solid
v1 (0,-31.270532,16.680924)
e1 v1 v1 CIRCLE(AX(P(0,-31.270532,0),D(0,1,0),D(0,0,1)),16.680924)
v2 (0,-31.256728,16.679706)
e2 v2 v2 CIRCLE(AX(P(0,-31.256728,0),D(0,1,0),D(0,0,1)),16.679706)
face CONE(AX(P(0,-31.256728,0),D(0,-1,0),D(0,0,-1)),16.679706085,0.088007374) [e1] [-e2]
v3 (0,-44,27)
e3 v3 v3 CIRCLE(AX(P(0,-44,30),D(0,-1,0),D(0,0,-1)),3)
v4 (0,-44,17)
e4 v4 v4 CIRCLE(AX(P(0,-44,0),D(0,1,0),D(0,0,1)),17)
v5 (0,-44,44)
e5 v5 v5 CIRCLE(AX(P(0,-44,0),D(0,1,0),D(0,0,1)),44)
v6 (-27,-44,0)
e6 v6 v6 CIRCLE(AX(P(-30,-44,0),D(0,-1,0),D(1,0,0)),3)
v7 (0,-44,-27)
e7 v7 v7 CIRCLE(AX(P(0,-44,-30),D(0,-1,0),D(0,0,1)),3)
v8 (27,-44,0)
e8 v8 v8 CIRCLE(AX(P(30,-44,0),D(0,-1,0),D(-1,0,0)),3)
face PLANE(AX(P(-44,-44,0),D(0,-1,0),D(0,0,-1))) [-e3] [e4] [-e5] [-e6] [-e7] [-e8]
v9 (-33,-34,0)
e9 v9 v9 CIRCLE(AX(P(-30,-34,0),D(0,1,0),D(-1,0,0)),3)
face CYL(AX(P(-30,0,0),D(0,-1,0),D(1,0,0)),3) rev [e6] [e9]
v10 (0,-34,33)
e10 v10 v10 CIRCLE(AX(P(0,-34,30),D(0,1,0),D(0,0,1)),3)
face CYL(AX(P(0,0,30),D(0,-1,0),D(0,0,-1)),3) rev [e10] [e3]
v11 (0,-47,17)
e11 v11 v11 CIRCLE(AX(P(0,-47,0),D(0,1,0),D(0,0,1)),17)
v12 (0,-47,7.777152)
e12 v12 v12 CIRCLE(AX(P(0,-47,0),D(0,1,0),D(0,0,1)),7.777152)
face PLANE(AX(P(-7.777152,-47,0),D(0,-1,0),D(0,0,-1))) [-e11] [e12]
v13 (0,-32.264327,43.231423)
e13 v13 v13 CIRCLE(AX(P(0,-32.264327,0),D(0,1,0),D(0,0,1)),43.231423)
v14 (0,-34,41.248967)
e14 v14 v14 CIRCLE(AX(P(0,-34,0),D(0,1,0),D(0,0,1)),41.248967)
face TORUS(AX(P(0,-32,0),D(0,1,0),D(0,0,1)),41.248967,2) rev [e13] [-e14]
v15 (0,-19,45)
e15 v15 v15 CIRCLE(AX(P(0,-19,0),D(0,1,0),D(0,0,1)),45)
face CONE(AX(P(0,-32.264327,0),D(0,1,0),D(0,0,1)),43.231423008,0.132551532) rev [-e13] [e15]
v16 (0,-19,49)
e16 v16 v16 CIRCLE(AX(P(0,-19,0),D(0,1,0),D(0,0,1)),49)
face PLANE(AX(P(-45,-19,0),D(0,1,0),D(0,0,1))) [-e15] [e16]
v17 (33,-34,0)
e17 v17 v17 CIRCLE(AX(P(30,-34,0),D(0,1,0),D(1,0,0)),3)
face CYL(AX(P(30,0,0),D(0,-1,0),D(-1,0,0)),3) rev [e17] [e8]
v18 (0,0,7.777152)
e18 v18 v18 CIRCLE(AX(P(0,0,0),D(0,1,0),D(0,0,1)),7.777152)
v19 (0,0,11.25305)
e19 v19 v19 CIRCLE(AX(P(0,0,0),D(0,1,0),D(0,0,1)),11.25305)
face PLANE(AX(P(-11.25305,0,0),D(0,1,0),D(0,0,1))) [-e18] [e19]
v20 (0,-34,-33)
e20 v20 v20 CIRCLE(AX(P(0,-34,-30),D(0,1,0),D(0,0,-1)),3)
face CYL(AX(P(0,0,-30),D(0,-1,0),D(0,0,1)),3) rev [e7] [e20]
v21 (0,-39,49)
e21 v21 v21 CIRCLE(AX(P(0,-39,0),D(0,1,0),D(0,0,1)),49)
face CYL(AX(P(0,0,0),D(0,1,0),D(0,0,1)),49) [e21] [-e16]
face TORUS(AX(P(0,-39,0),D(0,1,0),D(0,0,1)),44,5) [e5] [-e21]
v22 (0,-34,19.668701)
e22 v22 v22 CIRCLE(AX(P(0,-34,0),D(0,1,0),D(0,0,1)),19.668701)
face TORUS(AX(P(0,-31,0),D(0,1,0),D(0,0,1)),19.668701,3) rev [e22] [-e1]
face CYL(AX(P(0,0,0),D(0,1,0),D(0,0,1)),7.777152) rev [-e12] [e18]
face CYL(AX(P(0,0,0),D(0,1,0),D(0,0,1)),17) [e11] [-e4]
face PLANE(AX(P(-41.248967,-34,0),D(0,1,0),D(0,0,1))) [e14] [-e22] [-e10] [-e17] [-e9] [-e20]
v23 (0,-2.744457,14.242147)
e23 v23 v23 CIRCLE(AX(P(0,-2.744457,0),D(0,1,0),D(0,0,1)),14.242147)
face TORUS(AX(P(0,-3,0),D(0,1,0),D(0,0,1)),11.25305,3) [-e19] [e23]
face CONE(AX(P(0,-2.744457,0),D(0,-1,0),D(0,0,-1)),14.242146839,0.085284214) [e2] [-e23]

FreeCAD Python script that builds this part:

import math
import FreeCAD as App
import Part
import Sketcher

V = App.Vector

doc = App.newDocument("Part")
body = doc.addObject("PartDesign::Body", "Body")

# Sketch on XY plane
sketch1 = body.newObject("Sketcher::SketchObject", "Sketch")
sketch1.AttachmentSupport = (doc.getObject("XY_Plane"), [""])
sketch1.MapMode = "FlatFace"
sketch1.addGeometry([
    Part.LineSegment(V(-7.777152, 0, 0), V(-11.25305, 0, 0)),  # 0
    Part.ArcOfCircle(Part.Circle(V(-11.25305, -3, 0), V(0, 0, 1), 3), math.radians(90), math.radians(175.113574)),  # 1
    Part.LineSegment(V(-14.242147, -2.744457, 0), V(-16.679706, -31.256728, 0)),  # 2
    Part.LineSegment(V(-16.679706, -31.256728, 0), V(-16.680924, -31.270532, 0)),  # 3
    Part.ArcOfCircle(Part.Circle(V(-19.668701, -31, 0), V(0, 0, 1), 3), math.radians(-90), math.radians(-5.173802)),  # 4
    Part.LineSegment(V(-19.668701, -34, 0), V(-41.248967, -34, 0)),  # 5
    Part.ArcOfCircle(Part.Circle(V(-41.248967, -32, 0), V(0, 0, 1), 2), math.radians(-172.405357), math.radians(-90)),  # 6
    Part.LineSegment(V(-43.231423, -32.264327, 0), V(-45, -19, 0)),  # 7
    Part.LineSegment(V(-45, -19, 0), V(-49, -19, 0)),  # 8
    Part.LineSegment(V(-49, -19, 0), V(-49, -39, 0)),  # 9
    Part.ArcOfCircle(Part.Circle(V(-44, -39, 0), V(0, 0, 1), 5), math.radians(180), math.radians(270)),  # 10
    Part.LineSegment(V(-44, -44, 0), V(-17, -44, 0)),  # 11
    Part.LineSegment(V(-17, -44, 0), V(-17, -47, 0)),  # 12
    Part.LineSegment(V(-17, -47, 0), V(-7.777152, -47, 0)),  # 13
    Part.LineSegment(V(-7.777152, -47, 0), V(-7.777152, 0, 0)),  # 14
], False)
sketch1.addConstraint([
    Sketcher.Constraint("Tangent", 0, 2, 1, 1),
    Sketcher.Constraint("Tangent", 1, 2, 2, 1),
    Sketcher.Constraint("Coincident", 2, 2, 3, 1),
    Sketcher.Constraint("Coincident", 3, 2, 4, 2),
    Sketcher.Constraint("Tangent", 4, 1, 5, 1),
    Sketcher.Constraint("Tangent", 5, 2, 6, 2),
    Sketcher.Constraint("Tangent", 6, 1, 7, 1),
    Sketcher.Constraint("Coincident", 7, 2, 8, 1),
    Sketcher.Constraint("Coincident", 8, 2, 9, 1),
    Sketcher.Constraint("Tangent", 9, 2, 10, 1),
    Sketcher.Constraint("Tangent", 10, 2, 11, 1),
    Sketcher.Constraint("Coincident", 11, 2, 12, 1),
    Sketcher.Constraint("Coincident", 12, 2, 13, 1),
    Sketcher.Constraint("Coincident", 13, 2, 14, 1),
    Sketcher.Constraint("Coincident", 14, 2, 0, 1),
    Sketcher.Constraint("Horizontal", 0),
    Sketcher.Constraint("Horizontal", 5),
    Sketcher.Constraint("Horizontal", 8),
    Sketcher.Constraint("Vertical", 9),
    Sketcher.Constraint("Horizontal", 11),
    Sketcher.Constraint("Vertical", 12),
    Sketcher.Constraint("Horizontal", 13),
    Sketcher.Constraint("Vertical", 14),
    Sketcher.Constraint("Equal", 1, 4),
    Sketcher.Constraint("PointOnObject", 0, 2, -1),
    Sketcher.Constraint("Radius", 1, 3.0),
    Sketcher.Constraint("Radius", 6, 2.0),
    Sketcher.Constraint("Radius", 10, 5.0),
    Sketcher.Constraint("DistanceX", 8, 2, 8, 1, 4.0),
    Sketcher.Constraint("DistanceX", 11, 1, 11, 2, 27.0),
    Sketcher.Constraint("DistanceY", 9, 2, 9, 1, 20.0),
    Sketcher.Constraint("DistanceY", 12, 2, 12, 1, 3.0),
    Sketcher.Constraint("DistanceY", 14, 1, 14, 2, 47.0),
    Sketcher.Constraint("DistanceY", 4, 3, -1, 1, 31.0),
    Sketcher.Constraint("DistanceX", 10, 3, -1, 1, 44.0),
    Sketcher.Constraint("DistanceX", 0, 2, 0, 1, 3.475898),
    Sketcher.Constraint("DistanceX", 4, 3, -1, 1, 19.668701),
    Sketcher.Constraint("DistanceX", 5, 2, 5, 1, 21.580266),
    Sketcher.Constraint("DistanceX", 13, 1, 13, 2, 9.222848),
    Sketcher.Constraint("DistanceY", 2, 2, -1, 1, 31.256728),
    Sketcher.Constraint("DistanceY", 3, 2, -1, 1, 31.270532),
    Sketcher.Constraint("DistanceX", 6, 3, 1, 2, 27.00682),
])
revolution = body.newObject("PartDesign::Revolution", "Revolution")
revolution.Profile = sketch1
revolution.ReferenceAxis = (sketch1, ["V_Axis"])
revolution.Angle = 360

# Sketch on XZ plane
sketch2 = body.newObject("Sketcher::SketchObject", "Sketch001")
sketch2.AttachmentSupport = (doc.getObject("XZ_Plane"), [""])
sketch2.MapMode = "FlatFace"
sketch2.AttachmentOffset = App.Placement(V(0, 0, -1), App.Rotation())
sketch2.addGeometry(Part.Circle(V(0, 30, 0), V(0, 0, 1), 3), False)
sketch2.addConstraint([
    Sketcher.Constraint("PointOnObject", 0, 3, -2),
    Sketcher.Constraint("Diameter", 0, 6.0),
    Sketcher.Constraint("DistanceY", -1, 1, 0, 3, 30.0),
])
pocket1 = body.newObject("PartDesign::Pocket", "Pocket")
pocket1.Profile = sketch2
pocket1.Length = 49
pocket1.Reversed = True
doc.recompute()

polarpattern = body.newObject("PartDesign::PolarPattern", "PolarPattern")
polarpattern.Originals = [pocket1]
polarpattern.Axis = (doc.getObject("Y_Axis"), [""])
polarpattern.Angle = 360
polarpattern.Occurrences = 4
body.Tip = polarpattern

doc.recompute()
